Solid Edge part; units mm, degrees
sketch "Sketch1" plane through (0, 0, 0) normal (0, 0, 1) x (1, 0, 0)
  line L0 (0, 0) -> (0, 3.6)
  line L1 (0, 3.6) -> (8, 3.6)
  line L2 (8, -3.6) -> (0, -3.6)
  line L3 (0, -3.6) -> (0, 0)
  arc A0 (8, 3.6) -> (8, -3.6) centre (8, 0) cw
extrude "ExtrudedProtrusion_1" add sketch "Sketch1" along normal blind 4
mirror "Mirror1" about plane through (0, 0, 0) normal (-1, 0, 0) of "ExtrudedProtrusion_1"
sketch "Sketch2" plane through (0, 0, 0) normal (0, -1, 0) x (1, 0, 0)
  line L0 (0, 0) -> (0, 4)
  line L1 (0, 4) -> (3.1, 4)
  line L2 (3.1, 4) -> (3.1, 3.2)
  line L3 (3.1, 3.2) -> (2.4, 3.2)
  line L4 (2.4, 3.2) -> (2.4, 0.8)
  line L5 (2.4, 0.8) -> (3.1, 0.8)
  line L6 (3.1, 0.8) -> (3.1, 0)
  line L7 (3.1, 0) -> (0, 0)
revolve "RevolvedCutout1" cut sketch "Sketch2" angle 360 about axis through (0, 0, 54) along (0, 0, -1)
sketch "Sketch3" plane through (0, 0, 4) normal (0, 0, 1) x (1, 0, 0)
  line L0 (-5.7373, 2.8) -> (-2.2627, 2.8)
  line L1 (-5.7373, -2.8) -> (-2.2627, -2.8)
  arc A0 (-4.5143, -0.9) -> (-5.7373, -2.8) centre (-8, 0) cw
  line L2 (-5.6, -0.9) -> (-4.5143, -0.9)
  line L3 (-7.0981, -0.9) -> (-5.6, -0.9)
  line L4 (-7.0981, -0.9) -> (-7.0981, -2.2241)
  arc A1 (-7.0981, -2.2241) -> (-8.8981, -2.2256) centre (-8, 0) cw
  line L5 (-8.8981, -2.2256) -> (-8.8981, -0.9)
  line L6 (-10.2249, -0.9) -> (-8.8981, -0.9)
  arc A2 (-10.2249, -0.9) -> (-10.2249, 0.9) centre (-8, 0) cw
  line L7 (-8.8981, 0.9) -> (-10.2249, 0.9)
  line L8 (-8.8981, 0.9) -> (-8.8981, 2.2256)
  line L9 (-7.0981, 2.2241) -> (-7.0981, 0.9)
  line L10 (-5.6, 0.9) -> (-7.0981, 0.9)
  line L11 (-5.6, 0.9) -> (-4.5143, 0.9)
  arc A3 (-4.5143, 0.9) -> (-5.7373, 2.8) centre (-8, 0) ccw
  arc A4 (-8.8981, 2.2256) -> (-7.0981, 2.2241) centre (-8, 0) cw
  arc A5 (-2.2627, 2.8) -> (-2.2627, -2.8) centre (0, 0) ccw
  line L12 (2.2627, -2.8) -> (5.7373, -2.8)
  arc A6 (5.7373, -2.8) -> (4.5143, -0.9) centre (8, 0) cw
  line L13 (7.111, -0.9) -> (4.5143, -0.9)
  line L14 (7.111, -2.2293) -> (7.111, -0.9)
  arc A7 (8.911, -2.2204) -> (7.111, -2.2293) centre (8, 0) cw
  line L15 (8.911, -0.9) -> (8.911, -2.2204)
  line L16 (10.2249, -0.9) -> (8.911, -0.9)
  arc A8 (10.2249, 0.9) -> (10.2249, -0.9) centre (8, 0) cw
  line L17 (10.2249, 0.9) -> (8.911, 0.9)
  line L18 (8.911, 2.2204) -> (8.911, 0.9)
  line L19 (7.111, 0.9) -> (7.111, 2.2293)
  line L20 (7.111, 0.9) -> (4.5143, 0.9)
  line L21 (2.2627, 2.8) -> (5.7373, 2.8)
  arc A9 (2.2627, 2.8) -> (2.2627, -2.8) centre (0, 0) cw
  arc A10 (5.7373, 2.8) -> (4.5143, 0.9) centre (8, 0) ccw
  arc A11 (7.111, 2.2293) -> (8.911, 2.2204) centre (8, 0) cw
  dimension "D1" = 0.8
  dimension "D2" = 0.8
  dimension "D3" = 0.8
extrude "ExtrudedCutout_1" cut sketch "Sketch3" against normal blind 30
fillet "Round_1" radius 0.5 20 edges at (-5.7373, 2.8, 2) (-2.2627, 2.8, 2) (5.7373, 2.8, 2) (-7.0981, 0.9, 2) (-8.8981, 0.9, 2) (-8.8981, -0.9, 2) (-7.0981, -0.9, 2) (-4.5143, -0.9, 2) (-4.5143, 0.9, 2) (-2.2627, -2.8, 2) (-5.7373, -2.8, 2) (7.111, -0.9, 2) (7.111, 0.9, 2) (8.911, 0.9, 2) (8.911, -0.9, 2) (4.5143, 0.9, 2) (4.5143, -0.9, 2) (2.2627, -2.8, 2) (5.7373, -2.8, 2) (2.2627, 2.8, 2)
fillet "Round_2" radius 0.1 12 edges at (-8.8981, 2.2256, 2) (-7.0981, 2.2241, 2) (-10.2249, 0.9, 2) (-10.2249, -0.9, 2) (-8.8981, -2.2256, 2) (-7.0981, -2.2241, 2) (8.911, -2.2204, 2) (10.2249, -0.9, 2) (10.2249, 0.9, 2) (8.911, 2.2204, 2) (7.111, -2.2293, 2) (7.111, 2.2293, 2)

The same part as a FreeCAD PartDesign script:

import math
import FreeCAD as App
import Part
import Sketcher
from FreeCAD import Vector


def edges_at(feature, points):
    """Names of the edges that pass closest to the given points."""
    edges = feature.Shape.Edges
    near = lambda p: min(range(len(edges)), key=lambda i: edges[i].distToShape(Part.Vertex(*p))[0])
    return sorted({f"Edge{near(p) + 1}" for p in points})


def add_polygon(sketch, points):
    """Adds a closed chain of lines whose ends are joined by coincident constraints."""
    first, n = sketch.GeometryCount, len(points)
    for a, b in zip(points, points[1:] + points[:1]):
        sketch.addGeometry(Part.LineSegment(App.Vector(*a, 0), App.Vector(*b, 0)), False)
    for i in range(n):
        sketch.addConstraint(Sketcher.Constraint("Coincident", first + i, 2, first + (i + 1) % n, 1))

doc = App.newDocument("Part")
params = doc.addObject("Spreadsheet::Sheet", "Params")
for row, (alias, value) in enumerate([
    ("sketch1_radius", "3.6 mm"),
    ("sketch1_width", "8 mm"),
    ("pad1_length", "4 mm"),
    ("sketch2_height", "4 mm"),
    ("sketch2_width", "3.1 mm"),
    ("sketch2_width2", "0.7 mm"),
    ("sketch2_height2", "0.8 mm"),
    ("groove_angle", "360 deg"),
    ("sketch3_radius", "3.6 mm"),
    ("sketch3_radius2", "2.4 mm"),
    ("pocket1_length", "30 mm"),
    ("fillet_radius", "0.5 mm"),
    ("fillet2_radius", "0.1 mm"),
], start=1):
    params.set(f"A{row}", alias)
    params.set(f"B{row}", "=" + value)
    params.setAlias(f"B{row}", alias)

body = doc.addObject("PartDesign::Body", "Body")

sketch1 = body.newObject("Sketcher::SketchObject", "Sketch")
sketch1.AttachmentSupport = (doc.getObject("XY_Plane"), [""])
sketch1.MapMode = "FlatFace"
sketch1.addGeometry([
    Part.LineSegment(Vector(0, 3.6, 0), Vector(0, -3.6, 0)),
    Part.LineSegment(Vector(0, -3.6, 0), Vector(8, -3.6, 0)),
    Part.ArcOfCircle(Part.Circle(Vector(8, 0, 0), Vector(0, 0, 1), 3.6), math.radians(-90), math.radians(90)),
    Part.LineSegment(Vector(8, 3.6, 0), Vector(0, 3.6, 0)),
], False)
sketch1.addConstraint([
    Sketcher.Constraint("Coincident", 0, 2, 1, 1),
    Sketcher.Constraint("Tangent", 1, 2, 2, 1),
    Sketcher.Constraint("Tangent", 2, 2, 3, 1),
    Sketcher.Constraint("Coincident", 3, 2, 0, 1),
    Sketcher.Constraint("Vertical", 0),
    Sketcher.Constraint("Horizontal", 1),
    Sketcher.Constraint("Horizontal", 3),
    Sketcher.Constraint("Symmetric", 0, 2, 3, 2, -1, 1),
    Sketcher.Constraint("Radius", 2, 3.6),
    Sketcher.Constraint("DistanceX", 1, 1, 1, 2, 8.0),
])
sketch1.setExpression("Constraints[8]", "Params.sketch1_radius")
sketch1.setExpression("Constraints[9]", "Params.sketch1_width")
pad1 = body.newObject("PartDesign::Pad", "Pad")
pad1.Profile = sketch1
pad1.setExpression("Length", "Params.pad1_length")
doc.recompute()

mirrored = body.newObject("PartDesign::Mirrored", "Mirrored")
mirrored.Originals = [pad1]
mirrored.MirrorPlane = (doc.getObject("YZ_Plane"), [""])
body.Tip = mirrored

sketch2 = body.newObject("Sketcher::SketchObject", "Sketch001")
sketch2.AttachmentSupport = (doc.getObject("XZ_Plane"), [""])
sketch2.MapMode = "FlatFace"
add_polygon(sketch2, [(0, 4), (0, 0), (3.1, 0), (3.1, 0.8), (2.4, 0.8), (2.4, 3.2), (3.1, 3.2), (3.1, 4)])
sketch2.addConstraint([
    Sketcher.Constraint("Vertical", 0),
    Sketcher.Constraint("Horizontal", 1),
    Sketcher.Constraint("Vertical", 2),
    Sketcher.Constraint("Horizontal", 3),
    Sketcher.Constraint("Vertical", 4),
    Sketcher.Constraint("Horizontal", 5),
    Sketcher.Constraint("Vertical", 6),
    Sketcher.Constraint("Horizontal", 7),
    Sketcher.Constraint("Coincident", 0, 2, -1, 1),
    Sketcher.Constraint("Vertical", 2, 2, 5, 2),
    Sketcher.Constraint("Equal", 2, 6),
    Sketcher.Constraint("DistanceY", 0, 2, 0, 1, 4.0),
    Sketcher.Constraint("DistanceX", 1, 1, 1, 2, 3.1),
    Sketcher.Constraint("DistanceX", 3, 2, 3, 1, 0.7),
    Sketcher.Constraint("DistanceY", 2, 1, 2, 2, 0.8),
])
sketch2.setExpression("Constraints[19]", "Params.sketch2_height")
sketch2.setExpression("Constraints[20]", "Params.sketch2_width")
sketch2.setExpression("Constraints[21]", "Params.sketch2_width2")
sketch2.setExpression("Constraints[22]", "Params.sketch2_height2")
groove = body.newObject("PartDesign::Groove", "Groove")
groove.Profile = sketch2
groove.ReferenceAxis = (sketch2, ["V_Axis"])
groove.setExpression("Angle", "Params.groove_angle")

sketch3 = body.newObject("Sketcher::SketchObject", "Sketch002")
sketch3.AttachmentSupport = (doc.getObject("XY_Plane"), [""])
sketch3.MapMode = "FlatFace"
sketch3.AttachmentOffset = App.Placement(Vector(0, 0, 4), App.Rotation())
sketch3.addGeometry([
    Part.LineSegment(Vector(-2.3, 2.8, 0), Vector(-5.7, 2.8, 0)),
    Part.ArcOfCircle(Part.Circle(Vector(-8, 0, 0), Vector(0, 0, 1), 3.6), math.radians(14), math.radians(51)),
    Part.LineSegment(Vector(-4.5, 0.9, 0), Vector(-7.1, 0.9, 0)),
    Part.LineSegment(Vector(-7.1, 0.9, 0), Vector(-7.1, 2.2, 0)),
    Part.ArcOfCircle(Part.Circle(Vector(-8, 0, 0), Vector(0, 0, 1), 2.4), math.radians(68), math.radians(112)),
    Part.LineSegment(Vector(-8.9, 2.2, 0), Vector(-8.9, 0.9, 0)),
    Part.LineSegment(Vector(-8.9, 0.9, 0), Vector(-10.2, 0.9, 0)),
    Part.ArcOfCircle(Part.Circle(Vector(-8, 0, 0), Vector(0, 0, 1), 2.4), math.radians(158), math.radians(202)),
    Part.LineSegment(Vector(-10.2, -0.9, 0), Vector(-8.9, -0.9, 0)),
    Part.LineSegment(Vector(-8.9, -0.9, 0), Vector(-8.9, -2.2, 0)),
    Part.ArcOfCircle(Part.Circle(Vector(-8, 0, 0), Vector(0, 0, 1), 2.4), math.radians(-112), math.radians(-68)),
    Part.LineSegment(Vector(-7.1, -2.2, 0), Vector(-7.1, -0.9, 0)),
    Part.LineSegment(Vector(-7.1, -0.9, 0), Vector(-4.5, -0.9, 0)),
    Part.ArcOfCircle(Part.Circle(Vector(-8, 0, 0), Vector(0, 0, 1), 3.6), math.radians(-51), math.radians(-14)),
    Part.LineSegment(Vector(-5.7, -2.8, 0), Vector(-2.3, -2.8, 0)),
    Part.ArcOfCircle(Part.Circle(Vector(0, 0, 0), Vector(0, 0, 1), 3.6), math.radians(129), math.radians(231)),
    Part.ArcOfCircle(Part.Circle(Vector(0, 0, 0), Vector(0, 0, 1), 3.6), math.radians(-51), math.radians(51)),
    Part.LineSegment(Vector(2.3, -2.8, 0), Vector(5.7, -2.8, 0)),
    Part.ArcOfCircle(Part.Circle(Vector(8, 0, 0), Vector(0, 0, 1), 3.6), math.radians(-166), math.radians(-129)),
    Part.LineSegment(Vector(4.5, -0.9, 0), Vector(7.1, -0.9, 0)),
    Part.LineSegment(Vector(7.1, -0.9, 0), Vector(7.1, -2.2, 0)),
    Part.ArcOfCircle(Part.Circle(Vector(8, 0, 0), Vector(0, 0, 1), 2.4), math.radians(-112), math.radians(-68)),
    Part.LineSegment(Vector(8.9, -2.2, 0), Vector(8.9, -0.9, 0)),
    Part.LineSegment(Vector(8.9, -0.9, 0), Vector(10.2, -0.9, 0)),
    Part.ArcOfCircle(Part.Circle(Vector(8, 0, 0), Vector(0, 0, 1), 2.4), math.radians(-22), math.radians(22)),
    Part.LineSegment(Vector(10.2, 0.9, 0), Vector(8.9, 0.9, 0)),
    Part.LineSegment(Vector(8.9, 0.9, 0), Vector(8.9, 2.2, 0)),
    Part.ArcOfCircle(Part.Circle(Vector(8, 0, 0), Vector(0, 0, 1), 2.4), math.radians(68), math.radians(112)),
    Part.LineSegment(Vector(7.1, 2.2, 0), Vector(7.1, 0.9, 0)),
    Part.LineSegment(Vector(7.1, 0.9, 0), Vector(4.5, 0.9, 0)),
    Part.ArcOfCircle(Part.Circle(Vector(8, 0, 0), Vector(0, 0, 1), 3.6), math.radians(129), math.radians(166)),
    Part.LineSegment(Vector(5.7, 2.8, 0), Vector(2.3, 2.8, 0)),
], False)
sketch3.addConstraint([
    Sketcher.Constraint("Coincident", 0, 2, 1, 2),
    Sketcher.Constraint("Coincident", 1, 1, 2, 1),
    Sketcher.Constraint("Coincident", 2, 2, 3, 1),
    Sketcher.Constraint("Coincident", 3, 2, 4, 1),
    Sketcher.Constraint("Coincident", 4, 2, 5, 1),
    Sketcher.Constraint("Coincident", 5, 2, 6, 1),
    Sketcher.Constraint("Coincident", 6, 2, 7, 1),
    Sketcher.Constraint("Coincident", 7, 2, 8, 1),
    Sketcher.Constraint("Coincident", 8, 2, 9, 1),
    Sketcher.Constraint("Coincident", 9, 2, 10, 1),
    Sketcher.Constraint("Coincident", 10, 2, 11, 1),
    Sketcher.Constraint("Coincident", 11, 2, 12, 1),
    Sketcher.Constraint("Coincident", 12, 2, 13, 2),
    Sketcher.Constraint("Coincident", 13, 1, 14, 1),
    Sketcher.Constraint("Coincident", 14, 2, 15, 2),
    Sketcher.Constraint("Coincident", 15, 1, 0, 1),
    Sketcher.Constraint("Coincident", 16, 1, 17, 1),
    Sketcher.Constraint("Coincident", 17, 2, 18, 2),
    Sketcher.Constraint("Coincident", 18, 1, 19, 1),
    Sketcher.Constraint("Coincident", 19, 2, 20, 1),
    Sketcher.Constraint("Coincident", 20, 2, 21, 1),
    Sketcher.Constraint("Coincident", 21, 2, 22, 1),
    Sketcher.Constraint("Coincident", 22, 2, 23, 1),
    Sketcher.Constraint("Coincident", 23, 2, 24, 1),
    Sketcher.Constraint("Coincident", 24, 2, 25, 1),
    Sketcher.Constraint("Coincident", 25, 2, 26, 1),
    Sketcher.Constraint("Coincident", 26, 2, 27, 1),
    Sketcher.Constraint("Coincident", 27, 2, 28, 1),
    Sketcher.Constraint("Coincident", 28, 2, 29, 1),
    Sketcher.Constraint("Coincident", 29, 2, 30, 2),
    Sketcher.Constraint("Coincident", 30, 1, 31, 1),
    Sketcher.Constraint("Coincident", 31, 2, 16, 2),
    Sketcher.Constraint("Horizontal", 0),
    Sketcher.Constraint("Horizontal", 2),
    Sketcher.Constraint("Vertical", 3),
    Sketcher.Constraint("Vertical", 5),
    Sketcher.Constraint("Horizontal", 6),
    Sketcher.Constraint("Horizontal", 8),
    Sketcher.Constraint("Vertical", 9),
    Sketcher.Constraint("Vertical", 11),
    Sketcher.Constraint("Horizontal", 12),
    Sketcher.Constraint("Horizontal", 14),
    Sketcher.Constraint("Horizontal", 17),
    Sketcher.Constraint("Horizontal", 19),
    Sketcher.Constraint("Vertical", 20),
    Sketcher.Constraint("Vertical", 22),
    Sketcher.Constraint("Horizontal", 23),
    Sketcher.Constraint("Horizontal", 25),
    Sketcher.Constraint("Vertical", 26),
    Sketcher.Constraint("Vertical", 28),
    Sketcher.Constraint("Horizontal", 29),
    Sketcher.Constraint("Horizontal", 31),
    Sketcher.Constraint("Coincident", 15, 3, -1, 1),
    Sketcher.Constraint("Coincident", 16, 3, -1, 1),
    Sketcher.Constraint("Coincident", 4, 3, 1, 3),
    Sketcher.Constraint("Coincident", 7, 3, 1, 3),
    Sketcher.Constraint("Coincident", 10, 3, 1, 3),
    Sketcher.Constraint("Coincident", 13, 3, 1, 3),
    Sketcher.Constraint("Coincident", 21, 3, 18, 3),
    Sketcher.Constraint("Coincident", 24, 3, 18, 3),
    Sketcher.Constraint("Coincident", 27, 3, 18, 3),
    Sketcher.Constraint("Coincident", 30, 3, 18, 3),
    Sketcher.Constraint("Equal", 4, 7),
    Sketcher.Constraint("Equal", 7, 10),
    Sketcher.Constraint("Equal", 1, 13),
    Sketcher.Constraint("Equal", 13, 15),
    Sketcher.Constraint("Equal", 15, 16),
    Sketcher.Constraint("Equal", 16, 18),
    Sketcher.Constraint("Equal", 10, 21),
    Sketcher.Constraint("Equal", 21, 24),
    Sketcher.Constraint("Equal", 24, 27),
    Sketcher.Constraint("Equal", 18, 30),
    Sketcher.Constraint("Symmetric", 1, 3, 18, 3, -1, 1),
    Sketcher.Constraint("Symmetric", 13, 1, 17, 2, -2),
    Sketcher.Constraint("Symmetric", 5, 2, 8, 2, -1),
    Sketcher.Constraint("Symmetric", 2, 2, 11, 2, -1),
    Sketcher.Constraint("Symmetric", 22, 2, 25, 2, -1),
    Sketcher.Constraint("Symmetric", 19, 2, 28, 2, -1),
    Sketcher.Constraint("Horizontal", 2, 2, 5, 2),
    Sketcher.Constraint("Horizontal", 12, 2, 18, 1),
    Sketcher.Constraint("Horizontal", 19, 2, 22, 2),
    Sketcher.Constraint("Horizontal", 15, 1, 30, 1),
    Sketcher.Constraint("Vertical", 0, 2, 13, 1),
    Sketcher.Constraint("Radius", 1, 3.6),
    Sketcher.Constraint("Radius", 4, 2.4),
    Sketcher.Constraint("DistanceX", 1, 3, -1, 1, 8.0),
    Sketcher.Constraint("DistanceX", 14, 2, -1, 1, 2.2627),
    Sketcher.Constraint("DistanceY", -1, 1, 1, 1, 0.9),
    Sketcher.Constraint("DistanceX", 4, 2, 3, 2, 1.8),
    Sketcher.Constraint("DistanceX", 20, 2, 21, 2, 1.8),
    Sketcher.Constraint("DistanceX", 23, 1, 23, 2, 1.314),
    Sketcher.Constraint("DistanceY", 3, 1, 3, 2, 1.324),
])
sketch3.setExpression("Constraints[83]", "Params.sketch3_radius")
sketch3.setExpression("Constraints[84]", "Params.sketch3_radius2")
pocket1 = body.newObject("PartDesign::Pocket", "Pocket")
pocket1.Profile = sketch3
pocket1.setExpression("Length", "Params.pocket1_length")
doc.recompute()

fillet = body.newObject("PartDesign::Fillet", "Fillet")
fillet.Base = (pocket1, edges_at(pocket1, [
    (-5.737, 2.8, 2),
    (-2.263, 2.8, 2),
    (5.737, 2.8, 2),
    (-7.098, 0.9, 2),
    (-8.898, 0.9, 2),
    (-8.898, -0.9, 2),
    (-7.098, -0.9, 2),
    (-4.514, -0.9, 2),
    (-4.514, 0.9, 2),
    (-2.263, -2.8, 2),
    (-5.737, -2.8, 2),
    (7.111, -0.9, 2),
    (7.111, 0.9, 2),
    (8.911, 0.9, 2),
    (8.911, -0.9, 2),
    (4.514, 0.9, 2),
    (4.514, -0.9, 2),
    (2.263, -2.8, 2),
    (5.737, -2.8, 2),
    (2.263, 2.8, 2),
]))
fillet.setExpression("Radius", "Params.fillet_radius")
doc.recompute()

fillet2 = body.newObject("PartDesign::Fillet", "Fillet001")
fillet2.Base = (fillet, edges_at(fillet, [
    (-8.898, 2.226, 2),
    (-7.098, 2.224, 2),
    (-10.225, 0.9, 2),
    (-10.225, -0.9, 2),
    (-8.898, -2.226, 2),
    (-7.098, -2.224, 2),
    (8.911, -2.22, 2),
    (10.225, -0.9, 2),
    (10.225, 0.9, 2),
    (8.911, 2.22, 2),
    (7.111, -2.229, 2),
    (7.111, 2.229, 2),
]))
fillet2.setExpression("Radius", "Params.fillet2_radius")

doc.recompute()
